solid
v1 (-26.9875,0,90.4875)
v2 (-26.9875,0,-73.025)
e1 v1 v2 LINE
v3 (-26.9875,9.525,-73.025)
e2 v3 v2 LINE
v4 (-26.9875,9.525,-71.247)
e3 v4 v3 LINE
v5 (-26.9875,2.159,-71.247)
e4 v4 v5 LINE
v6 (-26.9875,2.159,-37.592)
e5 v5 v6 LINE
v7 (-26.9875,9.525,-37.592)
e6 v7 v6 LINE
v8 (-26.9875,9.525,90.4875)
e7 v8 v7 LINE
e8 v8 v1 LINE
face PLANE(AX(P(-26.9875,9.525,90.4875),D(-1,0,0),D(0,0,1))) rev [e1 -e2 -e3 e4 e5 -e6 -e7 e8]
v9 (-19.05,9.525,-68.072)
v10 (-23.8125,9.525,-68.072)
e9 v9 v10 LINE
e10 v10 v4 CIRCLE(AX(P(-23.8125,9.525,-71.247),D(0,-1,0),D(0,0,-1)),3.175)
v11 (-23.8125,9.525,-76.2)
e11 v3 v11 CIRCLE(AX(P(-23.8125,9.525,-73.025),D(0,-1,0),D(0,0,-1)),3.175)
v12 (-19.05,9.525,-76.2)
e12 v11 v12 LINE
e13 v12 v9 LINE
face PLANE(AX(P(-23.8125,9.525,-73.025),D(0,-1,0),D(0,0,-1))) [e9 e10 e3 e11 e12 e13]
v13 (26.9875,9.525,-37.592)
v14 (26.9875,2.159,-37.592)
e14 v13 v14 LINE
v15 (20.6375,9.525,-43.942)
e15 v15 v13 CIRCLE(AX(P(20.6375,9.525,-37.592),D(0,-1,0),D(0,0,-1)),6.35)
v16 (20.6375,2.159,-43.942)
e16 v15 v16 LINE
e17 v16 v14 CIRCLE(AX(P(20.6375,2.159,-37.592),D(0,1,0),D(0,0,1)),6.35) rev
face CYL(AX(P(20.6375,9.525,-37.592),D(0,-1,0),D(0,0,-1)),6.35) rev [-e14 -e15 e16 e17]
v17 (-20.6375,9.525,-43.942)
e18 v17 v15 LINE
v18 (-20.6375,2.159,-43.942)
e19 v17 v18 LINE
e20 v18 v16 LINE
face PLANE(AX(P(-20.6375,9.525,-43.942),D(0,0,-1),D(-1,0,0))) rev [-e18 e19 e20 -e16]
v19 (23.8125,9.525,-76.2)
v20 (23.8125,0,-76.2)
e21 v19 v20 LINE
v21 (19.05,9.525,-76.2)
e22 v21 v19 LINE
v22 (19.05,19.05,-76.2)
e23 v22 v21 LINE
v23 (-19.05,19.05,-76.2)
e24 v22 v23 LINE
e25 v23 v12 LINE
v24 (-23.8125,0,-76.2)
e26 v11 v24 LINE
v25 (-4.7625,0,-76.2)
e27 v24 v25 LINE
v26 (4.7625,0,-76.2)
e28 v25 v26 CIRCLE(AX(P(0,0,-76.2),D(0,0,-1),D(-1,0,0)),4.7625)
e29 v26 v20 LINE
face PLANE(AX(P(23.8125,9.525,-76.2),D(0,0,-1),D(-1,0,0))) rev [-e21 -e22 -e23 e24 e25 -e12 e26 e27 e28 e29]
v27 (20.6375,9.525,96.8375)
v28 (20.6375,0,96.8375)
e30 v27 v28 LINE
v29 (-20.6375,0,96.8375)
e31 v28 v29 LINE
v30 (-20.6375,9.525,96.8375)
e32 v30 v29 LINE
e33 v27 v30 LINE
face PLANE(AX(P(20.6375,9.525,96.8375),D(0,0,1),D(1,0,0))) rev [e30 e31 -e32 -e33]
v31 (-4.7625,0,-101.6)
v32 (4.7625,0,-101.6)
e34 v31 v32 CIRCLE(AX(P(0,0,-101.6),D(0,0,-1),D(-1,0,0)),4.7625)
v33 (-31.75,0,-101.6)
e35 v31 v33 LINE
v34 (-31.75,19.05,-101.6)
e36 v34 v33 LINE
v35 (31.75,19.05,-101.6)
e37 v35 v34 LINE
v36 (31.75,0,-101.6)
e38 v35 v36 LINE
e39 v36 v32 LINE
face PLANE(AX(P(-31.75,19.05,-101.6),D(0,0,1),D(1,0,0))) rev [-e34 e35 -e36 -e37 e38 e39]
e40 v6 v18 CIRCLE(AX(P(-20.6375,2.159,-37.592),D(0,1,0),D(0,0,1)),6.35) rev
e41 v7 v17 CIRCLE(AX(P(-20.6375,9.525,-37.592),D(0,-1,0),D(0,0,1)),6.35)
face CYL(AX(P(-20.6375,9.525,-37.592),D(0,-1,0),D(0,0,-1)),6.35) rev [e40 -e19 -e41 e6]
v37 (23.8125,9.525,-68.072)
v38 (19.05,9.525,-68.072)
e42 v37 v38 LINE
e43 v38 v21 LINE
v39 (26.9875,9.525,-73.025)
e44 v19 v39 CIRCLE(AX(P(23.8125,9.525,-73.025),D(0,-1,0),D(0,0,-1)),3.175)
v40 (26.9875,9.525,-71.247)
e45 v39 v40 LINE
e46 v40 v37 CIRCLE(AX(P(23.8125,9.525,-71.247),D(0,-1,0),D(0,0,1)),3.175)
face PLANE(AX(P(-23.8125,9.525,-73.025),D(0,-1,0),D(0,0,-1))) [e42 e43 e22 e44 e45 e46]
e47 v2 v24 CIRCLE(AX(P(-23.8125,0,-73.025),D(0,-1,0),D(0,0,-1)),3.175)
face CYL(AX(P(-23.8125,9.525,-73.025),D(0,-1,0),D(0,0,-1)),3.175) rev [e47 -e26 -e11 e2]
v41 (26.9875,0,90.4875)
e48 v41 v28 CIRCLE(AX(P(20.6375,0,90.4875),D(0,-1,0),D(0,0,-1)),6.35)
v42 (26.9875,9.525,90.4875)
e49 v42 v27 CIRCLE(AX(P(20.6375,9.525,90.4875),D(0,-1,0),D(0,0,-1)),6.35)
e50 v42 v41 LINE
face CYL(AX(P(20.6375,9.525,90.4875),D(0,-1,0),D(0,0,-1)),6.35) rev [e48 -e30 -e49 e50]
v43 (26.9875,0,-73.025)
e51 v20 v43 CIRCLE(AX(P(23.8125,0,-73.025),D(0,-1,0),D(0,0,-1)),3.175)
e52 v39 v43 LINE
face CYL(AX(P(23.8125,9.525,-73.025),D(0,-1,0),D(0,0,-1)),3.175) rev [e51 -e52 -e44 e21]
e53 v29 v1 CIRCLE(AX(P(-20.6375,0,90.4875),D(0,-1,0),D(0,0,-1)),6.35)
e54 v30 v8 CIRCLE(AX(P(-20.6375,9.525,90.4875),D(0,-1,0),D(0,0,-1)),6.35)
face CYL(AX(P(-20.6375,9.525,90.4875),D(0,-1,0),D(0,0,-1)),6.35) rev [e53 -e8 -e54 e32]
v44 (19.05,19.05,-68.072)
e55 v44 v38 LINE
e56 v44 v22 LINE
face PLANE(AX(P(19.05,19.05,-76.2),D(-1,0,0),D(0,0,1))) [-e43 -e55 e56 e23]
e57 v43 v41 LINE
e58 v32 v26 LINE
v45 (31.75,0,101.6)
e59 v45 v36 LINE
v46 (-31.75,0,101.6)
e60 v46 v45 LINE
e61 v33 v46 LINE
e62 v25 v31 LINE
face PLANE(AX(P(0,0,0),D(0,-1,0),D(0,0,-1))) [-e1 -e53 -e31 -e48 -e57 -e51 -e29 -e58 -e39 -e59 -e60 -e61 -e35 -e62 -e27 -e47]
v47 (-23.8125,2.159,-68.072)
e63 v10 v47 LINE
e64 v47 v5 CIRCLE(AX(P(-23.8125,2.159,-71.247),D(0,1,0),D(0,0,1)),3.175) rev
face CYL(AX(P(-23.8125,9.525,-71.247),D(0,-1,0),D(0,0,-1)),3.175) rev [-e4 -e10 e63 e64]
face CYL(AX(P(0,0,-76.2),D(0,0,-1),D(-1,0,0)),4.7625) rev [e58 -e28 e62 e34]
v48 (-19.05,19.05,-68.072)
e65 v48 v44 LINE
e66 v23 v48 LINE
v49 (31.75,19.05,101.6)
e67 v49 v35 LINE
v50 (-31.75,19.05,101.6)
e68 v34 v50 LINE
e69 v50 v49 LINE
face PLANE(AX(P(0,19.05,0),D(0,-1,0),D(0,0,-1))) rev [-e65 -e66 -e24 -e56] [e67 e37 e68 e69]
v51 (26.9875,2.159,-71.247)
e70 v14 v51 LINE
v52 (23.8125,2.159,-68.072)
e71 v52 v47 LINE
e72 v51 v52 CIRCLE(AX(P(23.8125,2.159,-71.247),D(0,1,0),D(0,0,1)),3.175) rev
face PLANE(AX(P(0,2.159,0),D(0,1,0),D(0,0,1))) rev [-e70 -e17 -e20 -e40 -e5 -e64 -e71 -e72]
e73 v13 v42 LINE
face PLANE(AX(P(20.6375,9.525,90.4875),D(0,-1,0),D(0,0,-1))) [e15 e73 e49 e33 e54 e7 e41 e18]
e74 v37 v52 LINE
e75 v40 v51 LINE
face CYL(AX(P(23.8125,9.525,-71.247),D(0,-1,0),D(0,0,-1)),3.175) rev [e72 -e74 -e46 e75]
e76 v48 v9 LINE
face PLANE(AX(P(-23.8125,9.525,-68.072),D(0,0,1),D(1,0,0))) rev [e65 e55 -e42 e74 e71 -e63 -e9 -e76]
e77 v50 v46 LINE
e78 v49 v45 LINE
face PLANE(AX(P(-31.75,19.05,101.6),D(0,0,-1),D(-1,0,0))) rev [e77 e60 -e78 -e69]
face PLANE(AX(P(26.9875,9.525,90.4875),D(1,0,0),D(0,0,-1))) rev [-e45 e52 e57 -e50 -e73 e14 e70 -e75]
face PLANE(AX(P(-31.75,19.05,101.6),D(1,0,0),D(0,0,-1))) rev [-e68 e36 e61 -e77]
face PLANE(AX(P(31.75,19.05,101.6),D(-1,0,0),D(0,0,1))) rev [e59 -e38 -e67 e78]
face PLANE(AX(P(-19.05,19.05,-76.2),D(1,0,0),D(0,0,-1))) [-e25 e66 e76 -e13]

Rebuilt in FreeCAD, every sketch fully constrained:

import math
import FreeCAD as App
import Part
import Sketcher
from FreeCAD import Vector
Q = App.Units.Quantity

doc = App.newDocument("Part")
body = doc.addObject("PartDesign::Body", "Body")

# Sketch on XZ plane
sketch1 = body.newObject("Sketcher::SketchObject", "Sketch")
sketch1.AttachmentSupport = (doc.getObject("XZ_Plane"), [""])
sketch1.MapMode = "FlatFace"
sketch1.addGeometry([
    Part.LineSegment(Vector(-32, -102, 0), Vector(-32, 102, 0)),
    Part.LineSegment(Vector(-32, 102, 0), Vector(32, 102, 0)),
    Part.LineSegment(Vector(32, 102, 0), Vector(32, -102, 0)),
    Part.LineSegment(Vector(32, -102, 0), Vector(-32, -102, 0)),
], False)
sketch1.addConstraint([
    Sketcher.Constraint("Coincident", 0, 2, 1, 1),
    Sketcher.Constraint("Coincident", 1, 2, 2, 1),
    Sketcher.Constraint("Coincident", 2, 2, 3, 1),
    Sketcher.Constraint("Coincident", 3, 2, 0, 1),
    Sketcher.Constraint("Vertical", 0),
    Sketcher.Constraint("Horizontal", 1),
    Sketcher.Constraint("Vertical", 2),
    Sketcher.Constraint("Horizontal", 3),
    Sketcher.Constraint("Symmetric", 0, 2, 2, 2, -1, 1),
    Sketcher.Constraint("DistanceY", 0, 1, 0, 2, Q("8 in")),
    Sketcher.Constraint("DistanceX", 1, 1, 1, 2, Q("2.5 in")),
])
pad1 = body.newObject("PartDesign::Pad", "Pad")
pad1.Profile = sketch1
pad1.Length = Q("0.75 in")
pad1.Reversed = True

# Sketch on XY plane
sketch2 = body.newObject("Sketcher::SketchObject", "Sketch001")
sketch2.AttachmentSupport = (doc.getObject("XY_Plane"), [""])
sketch2.MapMode = "FlatFace"
sketch2.AttachmentOffset = App.Placement(Vector(0, 0, -4 * 25.4), App.Rotation())
sketch2.addGeometry(Part.Circle(Vector(0, 0, 0), Vector(0, 0, 1), 4.8), False)
sketch2.addConstraint([
    Sketcher.Constraint("Coincident", 0, 3, -1, 1),
    Sketcher.Constraint("Diameter", 0, Q("0.375 in")),
])
pocket1 = body.newObject("PartDesign::Pocket", "Pocket")
pocket1.Profile = sketch2
pocket1.Length = Q("1 in")
pocket1.Reversed = True

# Sketch on XZ plane
sketch3 = body.newObject("Sketcher::SketchObject", "Sketch002")
sketch3.AttachmentSupport = (doc.getObject("XZ_Plane"), [""])
sketch3.MapMode = "FlatFace"
sketch3.addGeometry([
    Part.LineSegment(Vector(20.6, 96.8, 0), Vector(-20.6, 96.8, 0)),  # 0
    Part.ArcOfCircle(Part.Circle(Vector(-20.6, 90.5, 0), Vector(0, 0, 1), 6.3), math.radians(90), math.radians(180)),  # 1
    Part.LineSegment(Vector(-27, 90.5, 0), Vector(-27, -37.6, 0)),  # 2
    Part.ArcOfCircle(Part.Circle(Vector(-20.6, -37.6, 0), Vector(0, 0, 1), 6.3), math.radians(180), math.radians(270)),  # 3
    Part.LineSegment(Vector(-20.6, -43.9, 0), Vector(20.6, -43.9, 0)),  # 4
    Part.ArcOfCircle(Part.Circle(Vector(20.6, -37.6, 0), Vector(0, 0, 1), 6.3), math.radians(-90), math.radians(0)),  # 5
    Part.LineSegment(Vector(27, -37.6, 0), Vector(27, 90.5, 0)),  # 6
    Part.ArcOfCircle(Part.Circle(Vector(20.6, 90.5, 0), Vector(0, 0, 1), 6.3), math.radians(0), math.radians(90)),  # 7
    Part.LineSegment(Vector(-23.8, -76.2, 0), Vector(23.8, -76.2, 0)),  # 8
    Part.ArcOfCircle(Part.Circle(Vector(23.8, -73, 0), Vector(0, 0, 1), 3.2), math.radians(-90), math.radians(0)),  # 9
    Part.LineSegment(Vector(27, -73, 0), Vector(27, -71.2, 0)),  # 10
    Part.ArcOfCircle(Part.Circle(Vector(23.8, -71.2, 0), Vector(0, 0, 1), 3.2), math.radians(0), math.radians(90)),  # 11
    Part.LineSegment(Vector(23.8, -68.1, 0), Vector(-23.8, -68.1, 0)),  # 12
    Part.ArcOfCircle(Part.Circle(Vector(-23.8, -71.2, 0), Vector(0, 0, 1), 3.2), math.radians(90), math.radians(180)),  # 13
    Part.LineSegment(Vector(-27, -71.2, 0), Vector(-27, -73, 0)),  # 14
    Part.ArcOfCircle(Part.Circle(Vector(-23.8, -73, 0), Vector(0, 0, 1), 3.2), math.radians(-180), math.radians(-90)),  # 15
], False)
sketch3.addConstraint([
    Sketcher.Constraint("Tangent", 0, 2, 1, 1),
    Sketcher.Constraint("Tangent", 1, 2, 2, 1),
    Sketcher.Constraint("Tangent", 2, 2, 3, 1),
    Sketcher.Constraint("Tangent", 3, 2, 4, 1),
    Sketcher.Constraint("Tangent", 4, 2, 5, 1),
    Sketcher.Constraint("Tangent", 5, 2, 6, 1),
    Sketcher.Constraint("Tangent", 6, 2, 7, 1),
    Sketcher.Constraint("Tangent", 7, 2, 0, 1),
    Sketcher.Constraint("Tangent", 8, 2, 9, 1),
    Sketcher.Constraint("Tangent", 9, 2, 10, 1),
    Sketcher.Constraint("Tangent", 10, 2, 11, 1),
    Sketcher.Constraint("Tangent", 11, 2, 12, 1),
    Sketcher.Constraint("Tangent", 12, 2, 13, 1),
    Sketcher.Constraint("Tangent", 13, 2, 14, 1),
    Sketcher.Constraint("Tangent", 14, 2, 15, 1),
    Sketcher.Constraint("Tangent", 15, 2, 8, 1),
    Sketcher.Constraint("Horizontal", 0),
    Sketcher.Constraint("Vertical", 2),
    Sketcher.Constraint("Horizontal", 4),
    Sketcher.Constraint("Vertical", 6),
    Sketcher.Constraint("Horizontal", 8),
    Sketcher.Constraint("Vertical", 10),
    Sketcher.Constraint("Horizontal", 12),
    Sketcher.Constraint("Vertical", 14),
    Sketcher.Constraint("Equal", 1, 3),
    Sketcher.Constraint("Equal", 3, 5),
    Sketcher.Constraint("Equal", 5, 7),
    Sketcher.Constraint("Equal", 9, 11),
    Sketcher.Constraint("Equal", 11, 13),
    Sketcher.Constraint("Equal", 13, 15),
    Sketcher.Constraint("Vertical", 6, 2, 9, 2),
    Sketcher.Constraint("Vertical", 2, 2, 13, 2),
    Sketcher.Constraint("Radius", 1, Q("0.25 in")),
    Sketcher.Constraint("DistanceY", 8, 2, -1, 1, Q("3 in")),
    Sketcher.Constraint("Radius", 9, Q("0.125 in")),
    Sketcher.Constraint("DistanceX", 2, 2, 11, 3, Q("2 in")),
    Sketcher.Constraint("DistanceY", 10, 1, 10, 2, Q("0.07 in")),
    Sketcher.Constraint("DistanceY", 12, 2, 3, 3, Q("1.2 in")),
    Sketcher.Constraint("DistanceY", 2, 2, 2, 1, Q("5.0425 in")),
    Sketcher.Constraint("DistanceX", 1, 3, -1, 1, Q("0.8125 in")),
])
pocket2 = body.newObject("PartDesign::Pocket", "Pocket001")
pocket2.Profile = sketch3
pocket2.Length = Q("0.375 in")

# Sketch on XZ plane
sketch4 = body.newObject("Sketcher::SketchObject", "Sketch003")
sketch4.AttachmentSupport = (doc.getObject("XZ_Plane"), [""])
sketch4.MapMode = "FlatFace"
sketch4.addGeometry([
    Part.LineSegment(Vector(-19, -76, 0), Vector(-19, -68, 0)),
    Part.LineSegment(Vector(-19, -68, 0), Vector(19, -68, 0)),
    Part.LineSegment(Vector(19, -68, 0), Vector(19, -76, 0)),
    Part.LineSegment(Vector(19, -76, 0), Vector(-19, -76, 0)),
], False)
sketch4.addConstraint([
    Sketcher.Constraint("Coincident", 0, 2, 1, 1),
    Sketcher.Constraint("Coincident", 1, 2, 2, 1),
    Sketcher.Constraint("Coincident", 2, 2, 3, 1),
    Sketcher.Constraint("Coincident", 3, 2, 0, 1),
    Sketcher.Constraint("Vertical", 0),
    Sketcher.Constraint("Horizontal", 1),
    Sketcher.Constraint("Vertical", 2),
    Sketcher.Constraint("Horizontal", 3),
    Sketcher.Constraint("DistanceX", 1, 1, 1, 2, Q("1.5 in")),
    Sketcher.Constraint("DistanceY", 2, 2, -1, 1, Q("3 in")),
    Sketcher.Constraint("DistanceY", 0, 1, 0, 2, Q("0.32 in")),
    Sketcher.Constraint("DistanceX", 0, 2, -1, 1, Q("0.75 in")),
])
pocket3 = body.newObject("PartDesign::Pocket", "Pocket002")
pocket3.Profile = sketch4
pocket3.Type = "ThroughAll"

# Sketch on XZ plane
sketch5 = body.newObject("Sketcher::SketchObject", "Sketch004")
sketch5.AttachmentSupport = (doc.getObject("XZ_Plane"), [""])
sketch5.MapMode = "FlatFace"
sketch5.addGeometry([
    Part.LineSegment(Vector(-27, -71, 0), Vector(-27, -38, 0)),
    Part.LineSegment(Vector(-27, -38, 0), Vector(27, -38, 0)),
    Part.LineSegment(Vector(27, -38, 0), Vector(27, -71, 0)),
    Part.LineSegment(Vector(27, -71, 0), Vector(-27, -71, 0)),
], False)
sketch5.addConstraint([
    Sketcher.Constraint("Coincident", 0, 2, 1, 1),
    Sketcher.Constraint("Coincident", 1, 2, 2, 1),
    Sketcher.Constraint("Coincident", 2, 2, 3, 1),
    Sketcher.Constraint("Coincident", 3, 2, 0, 1),
    Sketcher.Constraint("Vertical", 0),
    Sketcher.Constraint("Horizontal", 1),
    Sketcher.Constraint("Vertical", 2),
    Sketcher.Constraint("Horizontal", 3),
    Sketcher.Constraint("DistanceX", 1, 1, 1, 2, Q("2.125 in")),
    Sketcher.Constraint("DistanceY", 0, 1, 0, 2, Q("1.325 in")),
    Sketcher.Constraint("DistanceY", 0, 2, -1, 1, Q("1.48 in")),
    Sketcher.Constraint("DistanceX", 0, 2, -1, 1, Q("1.0625 in")),
])
pocket4 = body.newObject("PartDesign::Pocket", "Pocket003")
pocket4.Profile = sketch5
pocket4.Length = Q("0.085 in")

doc.recompute()
